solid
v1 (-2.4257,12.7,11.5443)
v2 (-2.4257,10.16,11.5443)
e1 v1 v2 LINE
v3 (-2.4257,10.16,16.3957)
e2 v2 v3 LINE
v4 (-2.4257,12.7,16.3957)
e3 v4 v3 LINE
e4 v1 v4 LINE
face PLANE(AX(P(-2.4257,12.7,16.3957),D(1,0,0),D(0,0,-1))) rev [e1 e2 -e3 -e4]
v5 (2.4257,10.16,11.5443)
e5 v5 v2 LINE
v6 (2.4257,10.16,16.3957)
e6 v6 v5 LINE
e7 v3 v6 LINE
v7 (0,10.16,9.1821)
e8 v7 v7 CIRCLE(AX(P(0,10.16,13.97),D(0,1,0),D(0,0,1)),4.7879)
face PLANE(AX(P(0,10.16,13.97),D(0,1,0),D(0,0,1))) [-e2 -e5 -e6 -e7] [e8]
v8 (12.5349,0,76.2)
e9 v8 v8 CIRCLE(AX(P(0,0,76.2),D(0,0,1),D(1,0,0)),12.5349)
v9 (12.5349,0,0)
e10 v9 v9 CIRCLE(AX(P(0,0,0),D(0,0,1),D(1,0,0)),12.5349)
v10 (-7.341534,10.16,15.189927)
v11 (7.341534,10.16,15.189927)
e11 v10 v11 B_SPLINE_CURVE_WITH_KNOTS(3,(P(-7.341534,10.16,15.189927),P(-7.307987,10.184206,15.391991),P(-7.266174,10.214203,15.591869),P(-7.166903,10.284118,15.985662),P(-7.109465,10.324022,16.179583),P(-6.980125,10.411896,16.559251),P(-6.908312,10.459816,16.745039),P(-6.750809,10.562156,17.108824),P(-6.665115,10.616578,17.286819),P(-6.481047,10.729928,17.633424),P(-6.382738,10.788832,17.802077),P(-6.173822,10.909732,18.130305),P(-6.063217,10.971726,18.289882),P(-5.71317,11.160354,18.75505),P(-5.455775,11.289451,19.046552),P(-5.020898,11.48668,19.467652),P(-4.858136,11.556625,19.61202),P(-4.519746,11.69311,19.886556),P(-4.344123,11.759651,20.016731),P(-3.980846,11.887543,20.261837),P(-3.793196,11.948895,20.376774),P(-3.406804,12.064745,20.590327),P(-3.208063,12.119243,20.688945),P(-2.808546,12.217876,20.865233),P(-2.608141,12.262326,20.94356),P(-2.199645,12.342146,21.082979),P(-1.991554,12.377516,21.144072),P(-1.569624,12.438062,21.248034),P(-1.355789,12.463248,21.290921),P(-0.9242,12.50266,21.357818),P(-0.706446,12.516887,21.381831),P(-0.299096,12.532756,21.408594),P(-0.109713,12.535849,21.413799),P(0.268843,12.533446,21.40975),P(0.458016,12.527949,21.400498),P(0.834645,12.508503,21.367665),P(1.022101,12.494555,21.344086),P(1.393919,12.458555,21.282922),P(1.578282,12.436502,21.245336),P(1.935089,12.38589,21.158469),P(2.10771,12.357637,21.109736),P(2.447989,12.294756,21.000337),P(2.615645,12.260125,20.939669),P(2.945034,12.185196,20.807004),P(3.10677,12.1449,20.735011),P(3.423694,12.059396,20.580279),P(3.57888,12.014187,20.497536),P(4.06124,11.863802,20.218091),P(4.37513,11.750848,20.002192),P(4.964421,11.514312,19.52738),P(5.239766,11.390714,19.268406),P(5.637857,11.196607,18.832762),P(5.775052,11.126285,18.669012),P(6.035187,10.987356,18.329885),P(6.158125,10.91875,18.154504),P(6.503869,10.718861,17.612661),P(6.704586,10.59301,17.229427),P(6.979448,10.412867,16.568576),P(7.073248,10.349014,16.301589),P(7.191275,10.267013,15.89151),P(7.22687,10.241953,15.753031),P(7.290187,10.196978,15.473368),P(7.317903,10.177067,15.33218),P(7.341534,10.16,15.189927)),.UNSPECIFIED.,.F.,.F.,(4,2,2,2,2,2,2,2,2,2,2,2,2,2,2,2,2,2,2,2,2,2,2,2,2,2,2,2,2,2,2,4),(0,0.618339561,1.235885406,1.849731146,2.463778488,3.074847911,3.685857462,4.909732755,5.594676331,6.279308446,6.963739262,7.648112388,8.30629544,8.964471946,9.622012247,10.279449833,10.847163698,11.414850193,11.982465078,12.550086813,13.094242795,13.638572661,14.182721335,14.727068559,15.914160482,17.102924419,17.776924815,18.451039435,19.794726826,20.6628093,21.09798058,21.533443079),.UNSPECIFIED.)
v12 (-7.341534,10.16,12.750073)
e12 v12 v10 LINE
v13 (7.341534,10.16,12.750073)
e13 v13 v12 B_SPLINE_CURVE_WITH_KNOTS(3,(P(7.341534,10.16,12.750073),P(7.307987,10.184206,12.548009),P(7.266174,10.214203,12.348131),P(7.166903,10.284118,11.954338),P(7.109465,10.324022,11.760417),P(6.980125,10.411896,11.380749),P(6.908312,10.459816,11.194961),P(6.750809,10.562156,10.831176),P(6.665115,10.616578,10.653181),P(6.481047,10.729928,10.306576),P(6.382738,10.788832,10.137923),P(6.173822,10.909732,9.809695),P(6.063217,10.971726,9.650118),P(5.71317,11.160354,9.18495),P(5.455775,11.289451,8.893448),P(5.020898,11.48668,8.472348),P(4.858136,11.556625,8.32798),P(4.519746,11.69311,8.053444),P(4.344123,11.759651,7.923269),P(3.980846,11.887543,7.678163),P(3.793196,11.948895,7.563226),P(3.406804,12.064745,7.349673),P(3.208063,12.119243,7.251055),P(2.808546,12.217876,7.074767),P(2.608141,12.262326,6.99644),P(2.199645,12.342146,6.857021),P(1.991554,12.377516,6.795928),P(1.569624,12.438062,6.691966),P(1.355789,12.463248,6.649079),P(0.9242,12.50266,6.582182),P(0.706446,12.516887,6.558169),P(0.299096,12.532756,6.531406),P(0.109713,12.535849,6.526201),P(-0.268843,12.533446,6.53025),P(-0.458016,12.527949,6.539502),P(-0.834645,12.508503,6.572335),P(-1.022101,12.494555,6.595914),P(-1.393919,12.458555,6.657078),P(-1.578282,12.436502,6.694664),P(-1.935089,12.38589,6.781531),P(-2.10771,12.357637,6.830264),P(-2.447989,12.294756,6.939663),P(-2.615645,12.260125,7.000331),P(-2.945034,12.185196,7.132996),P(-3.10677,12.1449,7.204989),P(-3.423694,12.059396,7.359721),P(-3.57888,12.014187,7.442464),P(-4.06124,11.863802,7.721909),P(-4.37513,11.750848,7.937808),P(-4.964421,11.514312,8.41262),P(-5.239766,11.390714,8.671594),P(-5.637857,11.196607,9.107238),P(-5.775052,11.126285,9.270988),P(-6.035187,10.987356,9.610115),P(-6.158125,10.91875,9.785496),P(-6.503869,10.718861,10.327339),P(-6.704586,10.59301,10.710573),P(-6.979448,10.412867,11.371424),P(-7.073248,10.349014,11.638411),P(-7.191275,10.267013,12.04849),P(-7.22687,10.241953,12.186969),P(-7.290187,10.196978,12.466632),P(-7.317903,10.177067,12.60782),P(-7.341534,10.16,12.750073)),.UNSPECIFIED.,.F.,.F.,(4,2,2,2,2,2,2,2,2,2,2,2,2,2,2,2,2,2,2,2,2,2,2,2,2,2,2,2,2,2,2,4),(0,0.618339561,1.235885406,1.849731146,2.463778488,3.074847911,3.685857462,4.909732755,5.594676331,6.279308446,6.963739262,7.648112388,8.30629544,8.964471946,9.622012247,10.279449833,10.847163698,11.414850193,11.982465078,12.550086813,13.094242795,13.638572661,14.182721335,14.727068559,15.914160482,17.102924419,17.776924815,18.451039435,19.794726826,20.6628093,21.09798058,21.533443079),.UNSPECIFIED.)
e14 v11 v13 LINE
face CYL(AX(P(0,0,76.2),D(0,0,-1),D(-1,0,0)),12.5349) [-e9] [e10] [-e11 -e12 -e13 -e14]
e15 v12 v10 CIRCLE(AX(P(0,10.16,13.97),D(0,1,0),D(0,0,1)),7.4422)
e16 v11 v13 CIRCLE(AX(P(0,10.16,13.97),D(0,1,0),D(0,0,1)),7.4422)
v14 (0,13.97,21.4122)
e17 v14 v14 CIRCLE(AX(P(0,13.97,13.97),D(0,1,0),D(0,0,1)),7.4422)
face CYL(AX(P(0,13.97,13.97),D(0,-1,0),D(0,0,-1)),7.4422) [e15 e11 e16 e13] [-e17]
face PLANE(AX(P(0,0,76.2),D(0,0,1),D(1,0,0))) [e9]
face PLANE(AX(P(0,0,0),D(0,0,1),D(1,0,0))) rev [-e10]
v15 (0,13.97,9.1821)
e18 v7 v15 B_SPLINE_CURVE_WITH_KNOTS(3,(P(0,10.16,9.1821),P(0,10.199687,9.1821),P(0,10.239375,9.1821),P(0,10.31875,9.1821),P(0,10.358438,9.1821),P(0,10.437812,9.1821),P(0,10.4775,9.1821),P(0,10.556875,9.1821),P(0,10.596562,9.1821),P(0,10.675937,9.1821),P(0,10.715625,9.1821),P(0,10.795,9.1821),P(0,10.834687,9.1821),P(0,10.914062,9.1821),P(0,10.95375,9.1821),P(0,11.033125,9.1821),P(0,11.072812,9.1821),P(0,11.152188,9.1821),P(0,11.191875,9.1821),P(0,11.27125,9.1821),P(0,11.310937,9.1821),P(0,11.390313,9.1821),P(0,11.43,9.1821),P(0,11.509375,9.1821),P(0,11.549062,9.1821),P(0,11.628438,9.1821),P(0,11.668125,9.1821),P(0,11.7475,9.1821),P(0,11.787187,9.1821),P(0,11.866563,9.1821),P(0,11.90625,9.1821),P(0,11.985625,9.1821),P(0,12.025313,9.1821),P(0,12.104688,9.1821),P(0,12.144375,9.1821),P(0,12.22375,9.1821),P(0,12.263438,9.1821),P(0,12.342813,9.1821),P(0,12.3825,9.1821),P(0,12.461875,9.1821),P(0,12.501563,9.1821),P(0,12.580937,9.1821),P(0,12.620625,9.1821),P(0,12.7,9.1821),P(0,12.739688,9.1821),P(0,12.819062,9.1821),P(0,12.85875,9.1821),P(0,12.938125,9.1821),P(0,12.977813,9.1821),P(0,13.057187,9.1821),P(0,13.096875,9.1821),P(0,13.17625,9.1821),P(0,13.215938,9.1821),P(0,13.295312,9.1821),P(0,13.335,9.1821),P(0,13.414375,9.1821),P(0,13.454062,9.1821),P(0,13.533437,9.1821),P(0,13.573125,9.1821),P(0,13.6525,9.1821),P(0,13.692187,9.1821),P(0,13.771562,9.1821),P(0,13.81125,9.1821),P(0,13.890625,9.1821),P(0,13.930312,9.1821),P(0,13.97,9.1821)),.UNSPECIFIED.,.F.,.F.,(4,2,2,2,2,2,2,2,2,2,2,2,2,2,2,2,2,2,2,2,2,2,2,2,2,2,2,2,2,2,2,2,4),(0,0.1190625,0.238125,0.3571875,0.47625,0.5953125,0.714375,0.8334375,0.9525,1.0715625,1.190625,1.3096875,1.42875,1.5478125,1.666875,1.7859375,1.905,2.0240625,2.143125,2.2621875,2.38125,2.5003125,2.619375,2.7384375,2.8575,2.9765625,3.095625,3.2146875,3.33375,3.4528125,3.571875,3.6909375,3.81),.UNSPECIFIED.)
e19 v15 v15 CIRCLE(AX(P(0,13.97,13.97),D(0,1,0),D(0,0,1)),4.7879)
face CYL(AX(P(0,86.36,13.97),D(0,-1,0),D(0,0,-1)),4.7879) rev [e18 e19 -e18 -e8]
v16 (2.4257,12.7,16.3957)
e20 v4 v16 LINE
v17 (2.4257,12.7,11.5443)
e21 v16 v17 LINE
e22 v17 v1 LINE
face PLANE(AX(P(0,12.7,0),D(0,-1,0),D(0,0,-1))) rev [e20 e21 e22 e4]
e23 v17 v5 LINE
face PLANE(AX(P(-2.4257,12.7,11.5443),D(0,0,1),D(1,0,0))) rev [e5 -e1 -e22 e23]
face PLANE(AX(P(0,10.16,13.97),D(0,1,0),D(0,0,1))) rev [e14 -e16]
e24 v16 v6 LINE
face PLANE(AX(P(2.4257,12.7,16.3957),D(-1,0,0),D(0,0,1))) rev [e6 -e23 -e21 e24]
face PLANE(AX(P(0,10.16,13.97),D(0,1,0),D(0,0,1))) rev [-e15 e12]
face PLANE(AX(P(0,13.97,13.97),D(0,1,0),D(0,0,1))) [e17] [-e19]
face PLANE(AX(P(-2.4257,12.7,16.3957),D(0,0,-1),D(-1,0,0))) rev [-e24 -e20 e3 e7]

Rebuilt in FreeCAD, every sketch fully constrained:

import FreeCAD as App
import Part
import Sketcher
from FreeCAD import Vector
Q = App.Units.Quantity

doc = App.newDocument("Part")
body = doc.addObject("PartDesign::Body", "Body")

# Sketch on XY plane
sketch1 = body.newObject("Sketcher::SketchObject", "Sketch")
sketch1.AttachmentSupport = (doc.getObject("XY_Plane"), [""])
sketch1.MapMode = "FlatFace"
sketch1.addGeometry(Part.Circle(Vector(0, 0, 0), Vector(0, 0, 1), 13), False)
sketch1.addConstraint([
    Sketcher.Constraint("Coincident", 0, 3, -1, 1),
    Sketcher.Constraint("Diameter", 0, Q("0.987 in")),
])
pad1 = body.newObject("PartDesign::Pad", "Pad")
pad1.Profile = sketch1
pad1.Length = Q("3 in")

# Sketch on XZ plane
sketch2 = body.newObject("Sketcher::SketchObject", "Sketch001")
sketch2.AttachmentSupport = (doc.getObject("XZ_Plane"), [""])
sketch2.MapMode = "FlatFace"
sketch2.AttachmentOffset = App.Placement(Vector(0, 0, -0.4 * 25.4), App.Rotation())
sketch2.addGeometry(Part.Circle(Vector(0, 14, 0), Vector(0, 0, 1), 4.8), False)
sketch2.addConstraint([
    Sketcher.Constraint("PointOnObject", 0, 3, -2),
    Sketcher.Constraint("Diameter", 0, Q("0.377 in")),
    Sketcher.Constraint("DistanceY", -1, 1, 0, 3, Q("0.55 in")),
])
pocket1 = body.newObject("PartDesign::Pocket", "Pocket")
pocket1.Profile = sketch2
pocket1.Length = Q("3 in")

# Sketch on XZ plane
sketch3 = body.newObject("Sketcher::SketchObject", "Sketch002")
sketch3.AttachmentSupport = (doc.getObject("XZ_Plane"), [""])
sketch3.MapMode = "FlatFace"
sketch3.AttachmentOffset = App.Placement(Vector(0, 0, -0.4 * 25.4), App.Rotation())
sketch3.addGeometry([
    Part.LineSegment(Vector(-2.4, 11.5, 0), Vector(-2.4, 16.4, 0)),
    Part.LineSegment(Vector(-2.4, 16.4, 0), Vector(2.4, 16.4, 0)),
    Part.LineSegment(Vector(2.4, 16.4, 0), Vector(2.4, 11.5, 0)),
    Part.LineSegment(Vector(2.4, 11.5, 0), Vector(-2.4, 11.5, 0)),
], False)
sketch3.addConstraint([
    Sketcher.Constraint("Coincident", 0, 2, 1, 1),
    Sketcher.Constraint("Coincident", 1, 2, 2, 1),
    Sketcher.Constraint("Coincident", 2, 2, 3, 1),
    Sketcher.Constraint("Coincident", 3, 2, 0, 1),
    Sketcher.Constraint("Vertical", 0),
    Sketcher.Constraint("Horizontal", 1),
    Sketcher.Constraint("Vertical", 2),
    Sketcher.Constraint("Horizontal", 3),
    Sketcher.Constraint("Equal", 3, 0),
    Sketcher.Constraint("DistanceX", 1, 1, 1, 2, Q("0.191 in")),
    Sketcher.Constraint("DistanceX", 0, 2, -1, 1, Q("0.0955 in")),
    Sketcher.Constraint("DistanceY", -1, 1, 0, 2, Q("0.6455 in")),
])
pad2 = body.newObject("PartDesign::Pad", "Pad001")
pad2.Profile = sketch3
pad2.Length = Q("0.1 in")
pad2.Reversed = True

# Sketch on XZ plane
sketch4 = body.newObject("Sketcher::SketchObject", "Sketch003")
sketch4.AttachmentSupport = (doc.getObject("XZ_Plane"), [""])
sketch4.MapMode = "FlatFace"
sketch4.AttachmentOffset = App.Placement(Vector(0, 0, -0.4 * 25.4), App.Rotation())
sketch4.addGeometry([
    Part.Circle(Vector(0, 14, 0), Vector(0, 0, 1), 7.4),
    Part.Circle(Vector(0, 14, 0), Vector(0, 0, 1), 4.8),
], False)
sketch4.addConstraint([
    Sketcher.Constraint("Coincident", 1, 3, 0, 3),
    Sketcher.Constraint("PointOnObject", 0, 3, -2),
    Sketcher.Constraint("Diameter", 0, Q("0.586 in")),
    Sketcher.Constraint("Diameter", 1, Q("0.377 in")),
    Sketcher.Constraint("DistanceY", -1, 1, 0, 3, Q("0.55 in")),
])
pad3 = body.newObject("PartDesign::Pad", "Pad002")
pad3.Profile = sketch4
pad3.Length = Q("0.15 in")
pad3.Reversed = True

doc.recompute()
